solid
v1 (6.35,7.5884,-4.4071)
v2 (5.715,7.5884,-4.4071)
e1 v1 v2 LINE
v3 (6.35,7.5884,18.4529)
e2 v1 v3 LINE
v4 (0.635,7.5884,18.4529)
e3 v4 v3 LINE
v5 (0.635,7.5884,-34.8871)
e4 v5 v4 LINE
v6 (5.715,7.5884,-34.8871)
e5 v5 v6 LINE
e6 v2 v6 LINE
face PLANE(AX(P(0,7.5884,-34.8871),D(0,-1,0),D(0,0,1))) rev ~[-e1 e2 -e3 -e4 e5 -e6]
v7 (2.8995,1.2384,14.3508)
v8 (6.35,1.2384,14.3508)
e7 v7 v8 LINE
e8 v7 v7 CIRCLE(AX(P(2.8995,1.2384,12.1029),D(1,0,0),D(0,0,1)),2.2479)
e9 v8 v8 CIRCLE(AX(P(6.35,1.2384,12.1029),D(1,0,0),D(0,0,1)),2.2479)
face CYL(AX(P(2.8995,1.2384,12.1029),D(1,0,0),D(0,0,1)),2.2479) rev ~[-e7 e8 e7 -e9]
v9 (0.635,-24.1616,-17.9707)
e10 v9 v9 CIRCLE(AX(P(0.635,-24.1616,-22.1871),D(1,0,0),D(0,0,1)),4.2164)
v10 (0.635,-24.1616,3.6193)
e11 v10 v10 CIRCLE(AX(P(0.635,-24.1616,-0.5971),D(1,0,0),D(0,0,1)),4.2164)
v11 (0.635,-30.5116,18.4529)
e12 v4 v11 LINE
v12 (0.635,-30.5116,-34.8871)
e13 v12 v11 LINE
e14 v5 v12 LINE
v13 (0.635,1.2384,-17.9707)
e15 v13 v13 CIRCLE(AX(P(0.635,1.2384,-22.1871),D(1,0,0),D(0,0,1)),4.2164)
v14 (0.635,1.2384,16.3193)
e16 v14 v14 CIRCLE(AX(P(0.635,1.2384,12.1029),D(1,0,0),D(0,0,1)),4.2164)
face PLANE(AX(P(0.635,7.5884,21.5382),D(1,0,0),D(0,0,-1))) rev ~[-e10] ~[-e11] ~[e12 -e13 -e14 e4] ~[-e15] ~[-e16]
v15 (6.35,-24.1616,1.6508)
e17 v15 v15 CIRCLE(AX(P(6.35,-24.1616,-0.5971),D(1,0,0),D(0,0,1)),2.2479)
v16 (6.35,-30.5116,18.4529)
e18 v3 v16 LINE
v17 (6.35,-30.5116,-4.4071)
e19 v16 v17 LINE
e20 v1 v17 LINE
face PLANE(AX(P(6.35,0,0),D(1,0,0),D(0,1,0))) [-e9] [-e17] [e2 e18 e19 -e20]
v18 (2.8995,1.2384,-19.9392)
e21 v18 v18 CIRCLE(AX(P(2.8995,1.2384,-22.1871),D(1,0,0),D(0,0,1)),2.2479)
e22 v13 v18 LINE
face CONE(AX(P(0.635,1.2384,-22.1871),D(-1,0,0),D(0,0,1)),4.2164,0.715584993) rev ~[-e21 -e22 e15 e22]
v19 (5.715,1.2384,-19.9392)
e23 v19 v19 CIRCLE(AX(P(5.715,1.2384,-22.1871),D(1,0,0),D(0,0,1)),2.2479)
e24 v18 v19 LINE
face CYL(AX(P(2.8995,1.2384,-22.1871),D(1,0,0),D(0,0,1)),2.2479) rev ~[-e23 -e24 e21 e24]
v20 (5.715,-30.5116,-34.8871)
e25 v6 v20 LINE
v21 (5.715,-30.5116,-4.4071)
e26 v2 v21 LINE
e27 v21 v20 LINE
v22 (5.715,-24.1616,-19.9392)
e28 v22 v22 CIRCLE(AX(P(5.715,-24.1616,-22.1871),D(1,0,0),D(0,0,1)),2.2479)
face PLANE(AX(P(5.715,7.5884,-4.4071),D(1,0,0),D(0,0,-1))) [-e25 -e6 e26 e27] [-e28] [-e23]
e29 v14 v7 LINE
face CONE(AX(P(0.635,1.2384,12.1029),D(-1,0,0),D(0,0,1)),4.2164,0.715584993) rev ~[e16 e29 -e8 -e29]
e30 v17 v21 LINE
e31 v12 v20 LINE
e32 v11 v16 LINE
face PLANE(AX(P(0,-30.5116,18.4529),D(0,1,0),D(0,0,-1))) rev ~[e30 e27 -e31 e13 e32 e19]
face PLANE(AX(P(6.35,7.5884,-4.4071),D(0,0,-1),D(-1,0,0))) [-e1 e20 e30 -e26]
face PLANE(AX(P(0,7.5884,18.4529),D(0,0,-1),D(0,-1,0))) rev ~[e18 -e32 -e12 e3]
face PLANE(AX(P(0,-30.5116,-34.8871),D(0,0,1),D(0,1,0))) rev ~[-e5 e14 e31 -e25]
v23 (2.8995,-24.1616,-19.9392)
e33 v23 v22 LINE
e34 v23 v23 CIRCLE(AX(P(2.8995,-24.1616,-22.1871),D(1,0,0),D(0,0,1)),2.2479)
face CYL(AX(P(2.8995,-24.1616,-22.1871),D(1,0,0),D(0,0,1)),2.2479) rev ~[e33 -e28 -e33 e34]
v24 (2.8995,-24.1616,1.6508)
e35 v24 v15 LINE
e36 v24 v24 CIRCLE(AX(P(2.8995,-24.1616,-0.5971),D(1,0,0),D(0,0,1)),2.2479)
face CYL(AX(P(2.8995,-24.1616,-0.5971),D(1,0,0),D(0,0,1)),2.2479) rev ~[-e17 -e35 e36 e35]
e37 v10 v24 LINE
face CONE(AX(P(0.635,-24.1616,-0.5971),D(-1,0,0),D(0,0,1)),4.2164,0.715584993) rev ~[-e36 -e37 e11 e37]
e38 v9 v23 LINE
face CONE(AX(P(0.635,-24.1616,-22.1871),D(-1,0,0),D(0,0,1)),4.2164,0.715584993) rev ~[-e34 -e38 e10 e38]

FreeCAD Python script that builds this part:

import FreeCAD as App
import Part
import Sketcher

V = App.Vector
Q = App.Units.Quantity

doc = App.newDocument("Part")
body = doc.addObject("PartDesign::Body", "Body")

# Sketch on YZ plane
sketch1 = body.newObject("Sketcher::SketchObject", "Sketch")
sketch1.AttachmentSupport = (doc.getObject("YZ_Plane"), [""])
sketch1.MapMode = "FlatFace"
sketch1.addGeometry(Part.LineSegment(V(8, -35, 0), V(8, 18, 0)), False)
sketch1.addGeometry(Part.LineSegment(V(8, 18, 0), V(-31, 18, 0)), False)
sketch1.addGeometry(Part.LineSegment(V(-31, 18, 0), V(-31, -35, 0)), False)
sketch1.addGeometry(Part.LineSegment(V(-31, -35, 0), V(8, -35, 0)), False)
sketch1.addConstraint(Sketcher.Constraint("Coincident", 0, 2, 1, 1))
sketch1.addConstraint(Sketcher.Constraint("Coincident", 1, 2, 2, 1))
sketch1.addConstraint(Sketcher.Constraint("Coincident", 2, 2, 3, 1))
sketch1.addConstraint(Sketcher.Constraint("Coincident", 3, 2, 0, 1))
sketch1.addConstraint(Sketcher.Constraint("Vertical", 0))
sketch1.addConstraint(Sketcher.Constraint("Horizontal", 1))
sketch1.addConstraint(Sketcher.Constraint("Vertical", 2))
sketch1.addConstraint(Sketcher.Constraint("Horizontal", 3))
sketch1.addConstraint(Sketcher.Constraint("DistanceX", 1, 2, 1, 1, Q("1.5 in")))
sketch1.addConstraint(Sketcher.Constraint("DistanceY", 0, 1, 0, 2, Q("2.1 in")))
sketch1.addConstraint(Sketcher.Constraint("DistanceY", -1, 1, 0, 2, Q("0.7265 in")))
sketch1.addConstraint(Sketcher.Constraint("DistanceX", -1, 1, 0, 2, 7.5884))
pad1 = body.newObject("PartDesign::Pad", "Pad")
pad1.Profile = sketch1
pad1.Length = Q("0.25 in")

# Sketch on XZ plane
sketch2 = body.newObject("Sketcher::SketchObject", "Sketch001")
sketch2.AttachmentSupport = (doc.getObject("XZ_Plane"), [""])
sketch2.MapMode = "FlatFace"
sketch2.AttachmentOffset = App.Placement(V(0, 0, -7.5884), App.Rotation())
sketch2.addGeometry(Part.LineSegment(V(0, -34.9, 0), V(0, -4.4, 0)), False)
sketch2.addGeometry(Part.LineSegment(V(0, -4.4, 0), V(0.6, -4.4, 0)), False)
sketch2.addGeometry(Part.LineSegment(V(0.6, -4.4, 0), V(0.6, -34.9, 0)), False)
sketch2.addGeometry(Part.LineSegment(V(0.6, -34.9, 0), V(0, -34.9, 0)), False)
sketch2.addGeometry(Part.LineSegment(V(6.3, -34.9, 0), V(5.7, -34.9, 0)), False)
sketch2.addGeometry(Part.LineSegment(V(5.7, -34.9, 0), V(5.7, -4.4, 0)), False)
sketch2.addGeometry(Part.LineSegment(V(5.7, -4.4, 0), V(6.3, -4.4, 0)), False)
sketch2.addGeometry(Part.LineSegment(V(6.3, -4.4, 0), V(6.3, -34.9, 0)), False)
sketch2.addConstraint(Sketcher.Constraint("Coincident", 0, 2, 1, 1))
sketch2.addConstraint(Sketcher.Constraint("Coincident", 1, 2, 2, 1))
sketch2.addConstraint(Sketcher.Constraint("Coincident", 2, 2, 3, 1))
sketch2.addConstraint(Sketcher.Constraint("Coincident", 3, 2, 0, 1))
sketch2.addConstraint(Sketcher.Constraint("Coincident", 4, 2, 5, 1))
sketch2.addConstraint(Sketcher.Constraint("Coincident", 5, 2, 6, 1))
sketch2.addConstraint(Sketcher.Constraint("Coincident", 6, 2, 7, 1))
sketch2.addConstraint(Sketcher.Constraint("Coincident", 7, 2, 4, 1))
sketch2.addConstraint(Sketcher.Constraint("Vertical", 0))
sketch2.addConstraint(Sketcher.Constraint("Horizontal", 1))
sketch2.addConstraint(Sketcher.Constraint("Vertical", 2))
sketch2.addConstraint(Sketcher.Constraint("Horizontal", 3))
sketch2.addConstraint(Sketcher.Constraint("Horizontal", 4))
sketch2.addConstraint(Sketcher.Constraint("Vertical", 5))
sketch2.addConstraint(Sketcher.Constraint("Horizontal", 6))
sketch2.addConstraint(Sketcher.Constraint("Vertical", 7))
sketch2.addConstraint(Sketcher.Constraint("PointOnObject", 0, 2, -2))
sketch2.addConstraint(Sketcher.Constraint("Horizontal", 3, 2, 4, 2))
sketch2.addConstraint(Sketcher.Constraint("Horizontal", 1, 2, 5, 2))
sketch2.addConstraint(Sketcher.Constraint("Equal", 3, 4))
sketch2.addConstraint(Sketcher.Constraint("DistanceY", 0, 1, 0, 2, Q("1.2 in")))
sketch2.addConstraint(Sketcher.Constraint("DistanceX", 1, 1, 1, 2, Q("0.025 in")))
sketch2.addConstraint(Sketcher.Constraint("DistanceX", 2, 2, 4, 2, Q("0.2 in")))
sketch2.addConstraint(Sketcher.Constraint("DistanceY", 0, 2, -1, 1, Q("0.1735 in")))
pocket1 = body.newObject("PartDesign::Pocket", "Pocket")
pocket1.Profile = sketch2
pocket1.Length = Q("2 in")
pocket1.Reversed = True

# Sketch on XZ plane
sketch3 = body.newObject("Sketcher::SketchObject", "Sketch002")
sketch3.AttachmentSupport = (doc.getObject("XZ_Plane"), [""])
sketch3.MapMode = "FlatFace"
sketch3.AttachmentOffset = App.Placement(V(0, 0, -7.5884), App.Rotation())
sketch3.addGeometry(Part.LineSegment(V(0.6, 21.5, 0), V(0.6, -16.3, 0)), False)
sketch3.addGeometry(Part.LineSegment(V(0.6, -16.3, 0), V(-3.9, -16.3, 0)), False)
sketch3.addGeometry(Part.LineSegment(V(-3.9, -16.3, 0), V(-3.9, 21.5, 0)), False)
sketch3.addGeometry(Part.LineSegment(V(-3.9, 21.5, 0), V(0.6, 21.5, 0)), False)
sketch3.addConstraint(Sketcher.Constraint("Coincident", 0, 2, 1, 1))
sketch3.addConstraint(Sketcher.Constraint("Coincident", 1, 2, 2, 1))
sketch3.addConstraint(Sketcher.Constraint("Coincident", 2, 2, 3, 1))
sketch3.addConstraint(Sketcher.Constraint("Coincident", 3, 2, 0, 1))
sketch3.addConstraint(Sketcher.Constraint("Vertical", 0))
sketch3.addConstraint(Sketcher.Constraint("Horizontal", 1))
sketch3.addConstraint(Sketcher.Constraint("Vertical", 2))
sketch3.addConstraint(Sketcher.Constraint("Horizontal", 3))
sketch3.addConstraint(Sketcher.Constraint("DistanceX", -1, 1, 0, 2, Q("0.025 in")))
sketch3.addConstraint(Sketcher.Constraint("DistanceX", 1, 2, 1, 1, 4.5054))
sketch3.addConstraint(Sketcher.Constraint("DistanceY", 0, 2, 0, 1, 37.8454))
sketch3.addConstraint(Sketcher.Constraint("DistanceY", 0, 2, -1, 1, 16.3072))
pocket2 = body.newObject("PartDesign::Pocket", "Pocket001")
pocket2.Profile = sketch3
pocket2.Length = Q("2 in")
pocket2.Reversed = True

# Sketch on YZ plane
sketch4 = body.newObject("Sketcher::SketchObject", "Sketch003")
sketch4.AttachmentSupport = (doc.getObject("YZ_Plane"), [""])
sketch4.MapMode = "FlatFace"
sketch4.AttachmentOffset = App.Placement(V(0, 0, 0.025 * 25.4), App.Rotation())
sketch4.addGeometry(Part.Circle(V(1.2, 12.1, 0), V(0, 0, 1), 2.2), False)
sketch4.addGeometry(Part.Circle(V(-24.2, -0.6, 0), V(0, 0, 1), 2.2), False)
sketch4.addGeometry(Part.Circle(V(-24.2, -22.2, 0), V(0, 0, 1), 2.2), False)
sketch4.addGeometry(Part.Circle(V(1.2, -22.2, 0), V(0, 0, 1), 2.2), False)
sketch4.addConstraint(Sketcher.Constraint("Equal", 0, 1))
sketch4.addConstraint(Sketcher.Constraint("Equal", 1, 2))
sketch4.addConstraint(Sketcher.Constraint("Equal", 2, 3))
sketch4.addConstraint(Sketcher.Constraint("Horizontal", 2, 3, 3, 3))
sketch4.addConstraint(Sketcher.Constraint("Vertical", 1, 3, 2, 3))
sketch4.addConstraint(Sketcher.Constraint("Vertical", 0, 3, 3, 3))
sketch4.addConstraint(Sketcher.Constraint("Diameter", 0, Q("0.177 in")))
sketch4.addConstraint(Sketcher.Constraint("DistanceX", 1, 3, 0, 3, Q("1 in")))
sketch4.addConstraint(Sketcher.Constraint("DistanceY", 1, 3, 0, 3, Q("0.5 in")))
sketch4.addConstraint(Sketcher.Constraint("DistanceY", 2, 3, 1, 3, Q("0.85 in")))
sketch4.addConstraint(Sketcher.Constraint("DistanceY", -1, 1, 0, 3, Q("0.4765 in")))
sketch4.addConstraint(Sketcher.Constraint("DistanceX", -1, 1, 0, 3, 1.2384))
doc.recompute()
hole = body.newObject("PartDesign::Hole", "Hole")
hole.Profile = sketch4
hole.ThreadType = "None"
hole.Diameter = Q("0.177 in")
hole.DepthType = "ThroughAll"
hole.HoleCutType = "Countersink"
hole.HoleCutDiameter = Q("0.332 in")
hole.HoleCutCountersinkAngle = 82
hole.Reversed = True

doc.recompute()
